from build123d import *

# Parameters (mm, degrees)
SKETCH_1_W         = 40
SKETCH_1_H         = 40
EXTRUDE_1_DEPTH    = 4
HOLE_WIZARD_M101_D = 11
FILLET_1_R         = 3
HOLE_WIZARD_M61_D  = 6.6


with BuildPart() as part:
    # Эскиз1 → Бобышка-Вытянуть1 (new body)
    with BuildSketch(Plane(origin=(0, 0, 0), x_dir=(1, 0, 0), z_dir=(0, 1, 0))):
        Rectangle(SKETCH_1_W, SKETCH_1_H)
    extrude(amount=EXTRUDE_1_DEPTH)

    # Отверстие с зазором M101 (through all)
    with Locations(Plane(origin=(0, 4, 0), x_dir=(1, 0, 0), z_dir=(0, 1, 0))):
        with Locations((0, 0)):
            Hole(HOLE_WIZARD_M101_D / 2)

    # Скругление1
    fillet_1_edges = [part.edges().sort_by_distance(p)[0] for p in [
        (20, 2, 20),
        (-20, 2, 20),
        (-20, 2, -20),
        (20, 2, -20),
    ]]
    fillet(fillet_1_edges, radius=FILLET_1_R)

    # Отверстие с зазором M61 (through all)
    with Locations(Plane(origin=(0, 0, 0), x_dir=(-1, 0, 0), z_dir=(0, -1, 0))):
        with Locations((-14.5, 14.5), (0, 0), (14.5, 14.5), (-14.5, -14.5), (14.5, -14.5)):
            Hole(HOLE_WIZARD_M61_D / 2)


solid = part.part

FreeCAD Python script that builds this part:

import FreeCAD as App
import Part
import Sketcher
Q = App.Units.Quantity


def edges_at(feature, points):
    """Names of the edges that pass closest to the given points."""
    edges = feature.Shape.Edges
    near = lambda p: min(range(len(edges)), key=lambda i: edges[i].distToShape(Part.Vertex(*p))[0])
    return sorted({f"Edge{near(p) + 1}" for p in points})


def add_polygon(sketch, points):
    """Adds a closed chain of lines whose ends are joined by coincident constraints."""
    first, n = sketch.GeometryCount, len(points)
    for a, b in zip(points, points[1:] + points[:1]):
        sketch.addGeometry(Part.LineSegment(App.Vector(*a, 0), App.Vector(*b, 0)), False)
    for i in range(n):
        sketch.addConstraint(Sketcher.Constraint("Coincident", first + i, 2, first + (i + 1) % n, 1))

doc = App.newDocument("Part")
body = doc.addObject("PartDesign::Body", "Body")

sketch1 = doc.addObject("Sketcher::SketchObject", "Sketch")
body.addObject(sketch1)
sketch1.AttachmentSupport = (doc.XZ_Plane, [""])
sketch1.MapMode = "FlatFace"
add_polygon(sketch1, [(-20, -20), (-20, 20), (20, 20), (20, -20)])
sketch1.addConstraint([
    Sketcher.Constraint("Vertical", 0),
    Sketcher.Constraint("Horizontal", 1),
    Sketcher.Constraint("Vertical", 2),
    Sketcher.Constraint("Horizontal", 3),
    Sketcher.Constraint("Symmetric", 0, 2, 2, 2, -1, 1),
    Sketcher.Constraint("Equal", 3, 0),
    Sketcher.Constraint("DistanceX", 1, 1, 1, 2, Q("40 mm")),
])
pad1 = doc.addObject("PartDesign::Pad", "Pad")
body.addObject(pad1)
pad1.Profile = sketch1
pad1.Length = 4
pad1.Reversed = True

sketch2 = doc.addObject("Sketcher::SketchObject", "Sketch001")
body.addObject(sketch2)
sketch2.AttachmentSupport = (doc.XZ_Plane, [""])
sketch2.MapMode = "FlatFace"
sketch2.AttachmentOffset = App.Placement(App.Vector(0, 0, -4), App.Rotation())
sketch2.addGeometry(Part.Circle(App.Vector(0, 0, 0), App.Vector(0, 0, 1), 6), False)
sketch2.addConstraint([
    Sketcher.Constraint("Coincident", 0, 3, -1, 1),
    Sketcher.Constraint("Diameter", 0, Q("11 mm")),
])
doc.recompute()
hole = doc.addObject("PartDesign::Hole", "Hole")
body.addObject(hole)
hole.Profile = sketch2
hole.ThreadType = "None"
hole.Diameter = 11
hole.DepthType = "ThroughAll"
hole.Reversed = True
doc.recompute()

fillet = doc.addObject("PartDesign::Fillet", "Fillet")
body.addObject(fillet)
fillet.Base = (hole, edges_at(hole, [
    (20, 2, 20),
    (-20, 2, 20),
    (-20, 2, -20),
    (20, 2, -20),
]))
fillet.Radius = 3

sketch3 = doc.addObject("Sketcher::SketchObject", "Sketch002")
body.addObject(sketch3)
sketch3.AttachmentSupport = (doc.XZ_Plane, [""])
sketch3.MapMode = "FlatFace"
sketch3.addGeometry([
    Part.Circle(App.Vector(14.5, -14.5, 0), App.Vector(0, 0, 1), 3.3),
    Part.Circle(App.Vector(0, 0, 0), App.Vector(0, 0, 1), 3.3),
    Part.Circle(App.Vector(-14.5, -14.5, 0), App.Vector(0, 0, 1), 3.3),
    Part.Circle(App.Vector(14.5, 14.5, 0), App.Vector(0, 0, 1), 3.3),
    Part.Circle(App.Vector(-14.5, 14.5, 0), App.Vector(0, 0, 1), 3.3),
], False)
sketch3.addConstraint([
    Sketcher.Constraint("Coincident", 1, 3, -1, 1),
    Sketcher.Constraint("Equal", 0, 1),
    Sketcher.Constraint("Equal", 1, 2),
    Sketcher.Constraint("Equal", 2, 3),
    Sketcher.Constraint("Equal", 3, 4),
    Sketcher.Constraint("Symmetric", 2, 3, 3, 3, -1, 1),
    Sketcher.Constraint("Symmetric", 0, 3, 4, 3, -1, 1),
    Sketcher.Constraint("Symmetric", 0, 3, 2, 3, -2),
    Sketcher.Constraint("Diameter", 0, Q("6.6 mm")),
    Sketcher.Constraint("DistanceX", 2, 3, 0, 3, Q("29 mm")),
    Sketcher.Constraint("DistanceY", 0, 3, 3, 3, Q("29 mm")),
])
doc.recompute()
hole2 = doc.addObject("PartDesign::Hole", "Hole001")
body.addObject(hole2)
hole2.Profile = sketch3
hole2.ThreadType = "None"
hole2.Diameter = 6.6
hole2.DepthType = "ThroughAll"

doc.recompute()
